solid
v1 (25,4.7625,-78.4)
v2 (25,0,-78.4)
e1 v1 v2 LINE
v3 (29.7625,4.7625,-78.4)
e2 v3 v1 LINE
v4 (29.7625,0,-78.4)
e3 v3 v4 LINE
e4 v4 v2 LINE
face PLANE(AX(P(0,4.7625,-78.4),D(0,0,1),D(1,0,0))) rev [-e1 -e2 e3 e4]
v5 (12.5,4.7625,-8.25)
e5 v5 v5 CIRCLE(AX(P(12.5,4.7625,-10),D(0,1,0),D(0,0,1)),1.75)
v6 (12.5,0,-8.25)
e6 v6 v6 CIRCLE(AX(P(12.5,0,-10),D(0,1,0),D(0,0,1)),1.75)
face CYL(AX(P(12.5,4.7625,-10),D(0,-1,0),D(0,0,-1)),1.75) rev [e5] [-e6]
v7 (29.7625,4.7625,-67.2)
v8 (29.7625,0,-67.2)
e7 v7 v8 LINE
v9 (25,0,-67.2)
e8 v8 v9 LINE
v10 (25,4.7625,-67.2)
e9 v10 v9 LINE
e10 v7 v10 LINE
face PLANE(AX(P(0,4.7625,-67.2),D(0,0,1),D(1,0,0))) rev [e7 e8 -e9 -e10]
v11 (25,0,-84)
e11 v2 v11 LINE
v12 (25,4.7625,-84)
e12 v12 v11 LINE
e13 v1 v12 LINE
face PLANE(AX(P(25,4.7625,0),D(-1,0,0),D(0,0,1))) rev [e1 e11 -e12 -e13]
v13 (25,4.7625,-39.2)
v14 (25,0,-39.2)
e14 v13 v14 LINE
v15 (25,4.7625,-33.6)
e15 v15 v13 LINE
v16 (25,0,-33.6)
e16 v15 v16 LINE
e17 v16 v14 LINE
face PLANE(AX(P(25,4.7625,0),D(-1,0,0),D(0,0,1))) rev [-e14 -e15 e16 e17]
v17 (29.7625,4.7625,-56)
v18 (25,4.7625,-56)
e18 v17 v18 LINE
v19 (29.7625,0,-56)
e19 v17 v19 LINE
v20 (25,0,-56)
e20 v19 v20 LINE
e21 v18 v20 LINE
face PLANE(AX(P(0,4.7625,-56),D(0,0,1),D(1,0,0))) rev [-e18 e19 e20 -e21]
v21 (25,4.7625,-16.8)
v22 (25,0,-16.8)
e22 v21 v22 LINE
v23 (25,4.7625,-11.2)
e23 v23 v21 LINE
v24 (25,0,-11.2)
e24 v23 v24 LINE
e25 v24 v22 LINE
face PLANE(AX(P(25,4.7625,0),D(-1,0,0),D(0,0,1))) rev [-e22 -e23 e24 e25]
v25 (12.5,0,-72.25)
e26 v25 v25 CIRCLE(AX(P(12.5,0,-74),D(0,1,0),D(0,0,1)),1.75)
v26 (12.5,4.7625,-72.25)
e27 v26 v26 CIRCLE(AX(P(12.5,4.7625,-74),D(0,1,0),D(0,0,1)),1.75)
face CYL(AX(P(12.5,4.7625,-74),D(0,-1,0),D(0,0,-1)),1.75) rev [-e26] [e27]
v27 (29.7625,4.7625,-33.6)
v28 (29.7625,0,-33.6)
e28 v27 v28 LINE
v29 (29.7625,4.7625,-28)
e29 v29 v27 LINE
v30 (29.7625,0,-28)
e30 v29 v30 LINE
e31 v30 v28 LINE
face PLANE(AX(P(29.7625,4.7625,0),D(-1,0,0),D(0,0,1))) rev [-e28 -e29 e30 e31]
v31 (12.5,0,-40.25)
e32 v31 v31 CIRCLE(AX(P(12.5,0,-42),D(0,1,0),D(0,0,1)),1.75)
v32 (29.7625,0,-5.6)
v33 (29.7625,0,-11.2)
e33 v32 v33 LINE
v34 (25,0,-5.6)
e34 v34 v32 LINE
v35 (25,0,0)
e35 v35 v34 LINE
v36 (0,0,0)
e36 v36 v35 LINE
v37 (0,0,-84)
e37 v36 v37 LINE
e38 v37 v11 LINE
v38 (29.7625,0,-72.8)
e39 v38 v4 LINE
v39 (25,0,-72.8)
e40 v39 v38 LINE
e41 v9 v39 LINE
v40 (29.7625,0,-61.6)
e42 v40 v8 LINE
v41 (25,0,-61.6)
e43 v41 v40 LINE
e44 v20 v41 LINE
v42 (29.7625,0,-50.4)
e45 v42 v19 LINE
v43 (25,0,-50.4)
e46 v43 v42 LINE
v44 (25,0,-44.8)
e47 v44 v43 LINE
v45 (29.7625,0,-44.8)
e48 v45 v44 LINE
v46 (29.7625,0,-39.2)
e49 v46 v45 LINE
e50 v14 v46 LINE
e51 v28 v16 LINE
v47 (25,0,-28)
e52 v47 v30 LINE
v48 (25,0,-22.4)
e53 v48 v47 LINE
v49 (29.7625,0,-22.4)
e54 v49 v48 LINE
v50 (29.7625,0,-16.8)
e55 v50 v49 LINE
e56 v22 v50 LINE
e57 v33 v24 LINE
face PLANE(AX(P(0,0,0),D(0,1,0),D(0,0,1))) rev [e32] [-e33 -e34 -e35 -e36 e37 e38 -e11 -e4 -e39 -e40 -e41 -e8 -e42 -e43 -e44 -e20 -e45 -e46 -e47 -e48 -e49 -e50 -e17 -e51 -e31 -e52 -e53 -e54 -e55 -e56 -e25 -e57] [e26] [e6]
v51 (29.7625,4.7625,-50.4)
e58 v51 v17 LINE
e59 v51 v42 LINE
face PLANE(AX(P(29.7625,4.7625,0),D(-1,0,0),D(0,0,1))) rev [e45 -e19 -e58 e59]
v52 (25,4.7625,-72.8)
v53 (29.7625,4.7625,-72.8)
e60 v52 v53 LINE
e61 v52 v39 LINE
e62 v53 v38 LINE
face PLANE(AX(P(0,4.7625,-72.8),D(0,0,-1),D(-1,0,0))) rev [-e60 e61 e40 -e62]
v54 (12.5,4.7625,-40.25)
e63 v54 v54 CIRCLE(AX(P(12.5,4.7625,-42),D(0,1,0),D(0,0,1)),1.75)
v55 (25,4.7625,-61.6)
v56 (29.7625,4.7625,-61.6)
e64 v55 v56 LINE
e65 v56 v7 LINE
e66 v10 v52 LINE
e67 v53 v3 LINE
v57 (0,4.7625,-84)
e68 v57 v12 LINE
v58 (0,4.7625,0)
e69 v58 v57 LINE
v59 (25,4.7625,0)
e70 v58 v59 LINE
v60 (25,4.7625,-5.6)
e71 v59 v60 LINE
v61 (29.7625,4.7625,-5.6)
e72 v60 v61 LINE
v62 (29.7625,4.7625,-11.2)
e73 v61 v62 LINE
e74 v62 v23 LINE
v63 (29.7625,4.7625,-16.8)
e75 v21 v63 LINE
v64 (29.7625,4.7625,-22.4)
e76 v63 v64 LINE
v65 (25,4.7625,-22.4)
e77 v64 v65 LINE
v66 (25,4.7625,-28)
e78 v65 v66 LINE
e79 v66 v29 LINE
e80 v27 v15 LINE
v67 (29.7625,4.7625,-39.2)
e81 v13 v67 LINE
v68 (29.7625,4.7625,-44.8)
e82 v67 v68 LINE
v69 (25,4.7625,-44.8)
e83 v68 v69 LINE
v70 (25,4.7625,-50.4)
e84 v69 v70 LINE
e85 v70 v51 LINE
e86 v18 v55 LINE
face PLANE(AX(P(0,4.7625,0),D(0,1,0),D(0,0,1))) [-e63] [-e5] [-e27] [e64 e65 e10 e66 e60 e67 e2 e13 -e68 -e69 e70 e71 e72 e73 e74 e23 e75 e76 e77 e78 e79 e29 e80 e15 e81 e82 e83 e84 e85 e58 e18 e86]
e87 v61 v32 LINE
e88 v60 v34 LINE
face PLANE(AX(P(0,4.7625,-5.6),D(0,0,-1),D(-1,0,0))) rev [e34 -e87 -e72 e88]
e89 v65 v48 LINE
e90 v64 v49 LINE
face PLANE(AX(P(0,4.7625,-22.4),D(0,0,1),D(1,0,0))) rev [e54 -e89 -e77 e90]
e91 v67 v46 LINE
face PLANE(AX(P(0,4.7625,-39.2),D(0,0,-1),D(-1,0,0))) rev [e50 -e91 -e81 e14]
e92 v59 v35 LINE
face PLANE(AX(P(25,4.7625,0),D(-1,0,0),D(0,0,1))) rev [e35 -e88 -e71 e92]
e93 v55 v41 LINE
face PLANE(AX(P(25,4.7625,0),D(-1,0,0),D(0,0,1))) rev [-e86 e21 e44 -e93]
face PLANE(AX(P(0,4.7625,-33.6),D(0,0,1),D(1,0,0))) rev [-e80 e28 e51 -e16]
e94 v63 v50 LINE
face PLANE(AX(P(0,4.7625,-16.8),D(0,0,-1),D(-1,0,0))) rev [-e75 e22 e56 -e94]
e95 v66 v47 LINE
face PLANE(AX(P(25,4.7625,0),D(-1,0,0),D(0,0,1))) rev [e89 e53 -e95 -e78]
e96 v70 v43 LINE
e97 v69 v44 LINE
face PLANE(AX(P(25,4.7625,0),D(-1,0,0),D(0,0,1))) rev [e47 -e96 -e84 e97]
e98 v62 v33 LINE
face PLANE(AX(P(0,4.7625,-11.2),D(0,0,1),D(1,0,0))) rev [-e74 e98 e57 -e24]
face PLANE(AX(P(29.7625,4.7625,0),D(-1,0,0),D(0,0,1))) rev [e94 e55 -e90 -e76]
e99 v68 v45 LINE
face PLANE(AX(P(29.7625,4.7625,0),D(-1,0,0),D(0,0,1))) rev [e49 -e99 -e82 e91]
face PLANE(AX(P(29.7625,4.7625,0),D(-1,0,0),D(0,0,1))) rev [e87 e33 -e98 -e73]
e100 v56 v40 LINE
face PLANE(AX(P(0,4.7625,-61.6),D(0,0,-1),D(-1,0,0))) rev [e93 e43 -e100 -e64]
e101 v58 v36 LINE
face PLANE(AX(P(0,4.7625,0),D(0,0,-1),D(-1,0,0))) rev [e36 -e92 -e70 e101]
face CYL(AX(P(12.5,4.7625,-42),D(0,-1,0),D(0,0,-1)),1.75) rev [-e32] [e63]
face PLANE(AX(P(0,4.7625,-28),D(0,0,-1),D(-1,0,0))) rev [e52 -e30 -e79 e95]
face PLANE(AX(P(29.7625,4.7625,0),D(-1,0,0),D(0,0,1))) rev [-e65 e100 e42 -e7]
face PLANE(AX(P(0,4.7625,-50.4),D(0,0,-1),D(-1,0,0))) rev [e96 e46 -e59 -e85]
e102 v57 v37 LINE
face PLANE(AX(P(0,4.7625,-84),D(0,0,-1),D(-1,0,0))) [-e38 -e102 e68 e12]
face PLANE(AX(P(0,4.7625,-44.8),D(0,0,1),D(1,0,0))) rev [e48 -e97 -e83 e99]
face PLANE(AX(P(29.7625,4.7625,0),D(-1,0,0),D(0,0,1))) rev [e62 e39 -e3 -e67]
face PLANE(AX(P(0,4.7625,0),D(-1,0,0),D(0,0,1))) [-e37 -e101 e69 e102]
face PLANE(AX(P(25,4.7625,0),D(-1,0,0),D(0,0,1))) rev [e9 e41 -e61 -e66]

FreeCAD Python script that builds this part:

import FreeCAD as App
import Part
import Sketcher

doc = App.newDocument("Part")
params = doc.addObject("Spreadsheet::Sheet", "Params")
for row, (alias, value) in enumerate([
    ("sketch1_diameter", "3.5 mm"),
    ("sketch1_width", "25 mm"),
    ("sketch1_height", "84 mm"),
    ("pad1_length", "4.7625 mm"),
], start=1):
    params.set(f"A{row}", alias)
    params.set(f"B{row}", "=" + value)
    params.setAlias(f"B{row}", alias)

body = doc.addObject("PartDesign::Body", "Body")

sketch1 = doc.addObject("Sketcher::SketchObject", "Sketch")
body.addObject(sketch1)
sketch1.AttachmentSupport = (doc.XZ_Plane, [""])
sketch1.MapMode = "FlatFace"
sketch1.addGeometry([
    Part.LineSegment(App.Vector(0, -84, 0), App.Vector(0, 0, 0)),
    Part.LineSegment(App.Vector(0, 0, 0), App.Vector(25, 0, 0)),
    Part.LineSegment(App.Vector(25, 0, 0), App.Vector(25, -5.6, 0)),
    Part.LineSegment(App.Vector(25, -5.6, 0), App.Vector(29.8, -5.6, 0)),
    Part.LineSegment(App.Vector(29.8, -5.6, 0), App.Vector(29.8, -11.2, 0)),
    Part.LineSegment(App.Vector(29.8, -11.2, 0), App.Vector(25, -11.2, 0)),
    Part.LineSegment(App.Vector(25, -11.2, 0), App.Vector(25, -16.8, 0)),
    Part.LineSegment(App.Vector(25, -16.8, 0), App.Vector(29.8, -16.8, 0)),
    Part.LineSegment(App.Vector(29.8, -16.8, 0), App.Vector(29.8, -22.4, 0)),
    Part.LineSegment(App.Vector(29.8, -22.4, 0), App.Vector(25, -22.4, 0)),
    Part.LineSegment(App.Vector(25, -22.4, 0), App.Vector(25, -28, 0)),
    Part.LineSegment(App.Vector(25, -28, 0), App.Vector(29.8, -28, 0)),
    Part.LineSegment(App.Vector(29.8, -28, 0), App.Vector(29.8, -33.6, 0)),
    Part.LineSegment(App.Vector(29.8, -33.6, 0), App.Vector(25, -33.6, 0)),
    Part.LineSegment(App.Vector(25, -33.6, 0), App.Vector(25, -39.2, 0)),
    Part.LineSegment(App.Vector(25, -39.2, 0), App.Vector(29.8, -39.2, 0)),
    Part.LineSegment(App.Vector(29.8, -39.2, 0), App.Vector(29.8, -44.8, 0)),
    Part.LineSegment(App.Vector(29.8, -44.8, 0), App.Vector(25, -44.8, 0)),
    Part.LineSegment(App.Vector(25, -44.8, 0), App.Vector(25, -50.4, 0)),
    Part.LineSegment(App.Vector(25, -50.4, 0), App.Vector(29.8, -50.4, 0)),
    Part.LineSegment(App.Vector(29.8, -50.4, 0), App.Vector(29.8, -56, 0)),
    Part.LineSegment(App.Vector(29.8, -56, 0), App.Vector(25, -56, 0)),
    Part.LineSegment(App.Vector(25, -56, 0), App.Vector(25, -61.6, 0)),
    Part.LineSegment(App.Vector(25, -61.6, 0), App.Vector(29.8, -61.6, 0)),
    Part.LineSegment(App.Vector(29.8, -61.6, 0), App.Vector(29.8, -67.2, 0)),
    Part.LineSegment(App.Vector(29.8, -67.2, 0), App.Vector(25, -67.2, 0)),
    Part.LineSegment(App.Vector(25, -67.2, 0), App.Vector(25, -72.8, 0)),
    Part.LineSegment(App.Vector(25, -72.8, 0), App.Vector(29.8, -72.8, 0)),
    Part.LineSegment(App.Vector(29.8, -72.8, 0), App.Vector(29.8, -78.4, 0)),
    Part.LineSegment(App.Vector(29.8, -78.4, 0), App.Vector(25, -78.4, 0)),
    Part.LineSegment(App.Vector(25, -78.4, 0), App.Vector(25, -84, 0)),
    Part.LineSegment(App.Vector(25, -84, 0), App.Vector(0, -84, 0)),
    Part.Circle(App.Vector(12.5, -10, 0), App.Vector(0, 0, 1), 1.8),
    Part.Circle(App.Vector(12.5, -42, 0), App.Vector(0, 0, 1), 1.8),
    Part.Circle(App.Vector(12.5, -74, 0), App.Vector(0, 0, 1), 1.8),
], False)
sketch1.addConstraint([
    Sketcher.Constraint("Coincident", 0, 2, 1, 1),
    Sketcher.Constraint("Coincident", 1, 2, 2, 1),
    Sketcher.Constraint("Coincident", 2, 2, 3, 1),
    Sketcher.Constraint("Coincident", 3, 2, 4, 1),
    Sketcher.Constraint("Coincident", 4, 2, 5, 1),
    Sketcher.Constraint("Coincident", 5, 2, 6, 1),
    Sketcher.Constraint("Coincident", 6, 2, 7, 1),
    Sketcher.Constraint("Coincident", 7, 2, 8, 1),
    Sketcher.Constraint("Coincident", 8, 2, 9, 1),
    Sketcher.Constraint("Coincident", 9, 2, 10, 1),
    Sketcher.Constraint("Coincident", 10, 2, 11, 1),
    Sketcher.Constraint("Coincident", 11, 2, 12, 1),
    Sketcher.Constraint("Coincident", 12, 2, 13, 1),
    Sketcher.Constraint("Coincident", 13, 2, 14, 1),
    Sketcher.Constraint("Coincident", 14, 2, 15, 1),
    Sketcher.Constraint("Coincident", 15, 2, 16, 1),
    Sketcher.Constraint("Coincident", 16, 2, 17, 1),
    Sketcher.Constraint("Coincident", 17, 2, 18, 1),
    Sketcher.Constraint("Coincident", 18, 2, 19, 1),
    Sketcher.Constraint("Coincident", 19, 2, 20, 1),
    Sketcher.Constraint("Coincident", 20, 2, 21, 1),
    Sketcher.Constraint("Coincident", 21, 2, 22, 1),
    Sketcher.Constraint("Coincident", 22, 2, 23, 1),
    Sketcher.Constraint("Coincident", 23, 2, 24, 1),
    Sketcher.Constraint("Coincident", 24, 2, 25, 1),
    Sketcher.Constraint("Coincident", 25, 2, 26, 1),
    Sketcher.Constraint("Coincident", 26, 2, 27, 1),
    Sketcher.Constraint("Coincident", 27, 2, 28, 1),
    Sketcher.Constraint("Coincident", 28, 2, 29, 1),
    Sketcher.Constraint("Coincident", 29, 2, 30, 1),
    Sketcher.Constraint("Coincident", 30, 2, 31, 1),
    Sketcher.Constraint("Coincident", 31, 2, 0, 1),
    Sketcher.Constraint("Vertical", 0),
    Sketcher.Constraint("Horizontal", 1),
    Sketcher.Constraint("Vertical", 2),
    Sketcher.Constraint("Horizontal", 3),
    Sketcher.Constraint("Vertical", 4),
    Sketcher.Constraint("Horizontal", 5),
    Sketcher.Constraint("Vertical", 6),
    Sketcher.Constraint("Horizontal", 7),
    Sketcher.Constraint("Vertical", 8),
    Sketcher.Constraint("Horizontal", 9),
    Sketcher.Constraint("Vertical", 10),
    Sketcher.Constraint("Horizontal", 11),
    Sketcher.Constraint("Vertical", 12),
    Sketcher.Constraint("Horizontal", 13),
    Sketcher.Constraint("Vertical", 14),
    Sketcher.Constraint("Horizontal", 15),
    Sketcher.Constraint("Vertical", 16),
    Sketcher.Constraint("Horizontal", 17),
    Sketcher.Constraint("Vertical", 18),
    Sketcher.Constraint("Horizontal", 19),
    Sketcher.Constraint("Vertical", 20),
    Sketcher.Constraint("Horizontal", 21),
    Sketcher.Constraint("Vertical", 22),
    Sketcher.Constraint("Horizontal", 23),
    Sketcher.Constraint("Vertical", 24),
    Sketcher.Constraint("Horizontal", 25),
    Sketcher.Constraint("Vertical", 26),
    Sketcher.Constraint("Horizontal", 27),
    Sketcher.Constraint("Vertical", 28),
    Sketcher.Constraint("Horizontal", 29),
    Sketcher.Constraint("Vertical", 30),
    Sketcher.Constraint("Horizontal", 31),
    Sketcher.Constraint("Coincident", 0, 2, -1, 1),
    Sketcher.Constraint("Equal", 32, 33),
    Sketcher.Constraint("Equal", 33, 34),
    Sketcher.Constraint("Vertical", 32, 3, 33, 3),
    Sketcher.Constraint("Vertical", 33, 3, 34, 3),
    Sketcher.Constraint("Vertical", 2, 2, 5, 2),
    Sketcher.Constraint("Vertical", 4, 2, 7, 2),
    Sketcher.Constraint("Vertical", 6, 2, 9, 2),
    Sketcher.Constraint("Vertical", 8, 2, 11, 2),
    Sketcher.Constraint("Vertical", 10, 2, 13, 2),
    Sketcher.Constraint("Vertical", 12, 2, 15, 2),
    Sketcher.Constraint("Vertical", 14, 2, 17, 2),
    Sketcher.Constraint("Vertical", 16, 2, 19, 2),
    Sketcher.Constraint("Vertical", 18, 2, 21, 2),
    Sketcher.Constraint("Vertical", 20, 2, 23, 2),
    Sketcher.Constraint("Vertical", 22, 2, 25, 2),
    Sketcher.Constraint("Vertical", 24, 2, 27, 2),
    Sketcher.Constraint("Vertical", 26, 2, 29, 2),
    Sketcher.Constraint("Equal", 2, 4),
    Sketcher.Constraint("Equal", 4, 6),
    Sketcher.Constraint("Equal", 6, 8),
    Sketcher.Constraint("Equal", 8, 10),
    Sketcher.Constraint("Equal", 10, 12),
    Sketcher.Constraint("Equal", 12, 14),
    Sketcher.Constraint("Equal", 14, 16),
    Sketcher.Constraint("Equal", 16, 18),
    Sketcher.Constraint("Equal", 18, 20),
    Sketcher.Constraint("Equal", 20, 22),
    Sketcher.Constraint("Equal", 22, 24),
    Sketcher.Constraint("Equal", 24, 26),
    Sketcher.Constraint("Equal", 26, 28),
    Sketcher.Constraint("Equal", 28, 30),
    Sketcher.Constraint("Diameter", 32, 3.5),
    Sketcher.Constraint("DistanceX", 1, 1, 1, 2, 25.0),
    Sketcher.Constraint("DistanceY", 0, 1, 0, 2, 84.0),
    Sketcher.Constraint("DistanceY", 32, 3, -1, 1, 10.0),
    Sketcher.Constraint("DistanceY", 33, 3, -1, 1, 42.0),
    Sketcher.Constraint("DistanceY", 34, 3, -1, 1, 74.0),
    Sketcher.Constraint("DistanceX", -1, 1, 32, 3, 12.5),
    Sketcher.Constraint("DistanceX", 3, 1, 3, 2, 4.7625),
])
sketch1.setExpression("Constraints[96]", "Params.sketch1_diameter")
sketch1.setExpression("Constraints[97]", "Params.sketch1_width")
sketch1.setExpression("Constraints[98]", "Params.sketch1_height")
pad1 = doc.addObject("PartDesign::Pad", "Pad")
body.addObject(pad1)
pad1.Profile = sketch1
pad1.setExpression("Length", "Params.pad1_length")
pad1.Reversed = True

doc.recompute()
